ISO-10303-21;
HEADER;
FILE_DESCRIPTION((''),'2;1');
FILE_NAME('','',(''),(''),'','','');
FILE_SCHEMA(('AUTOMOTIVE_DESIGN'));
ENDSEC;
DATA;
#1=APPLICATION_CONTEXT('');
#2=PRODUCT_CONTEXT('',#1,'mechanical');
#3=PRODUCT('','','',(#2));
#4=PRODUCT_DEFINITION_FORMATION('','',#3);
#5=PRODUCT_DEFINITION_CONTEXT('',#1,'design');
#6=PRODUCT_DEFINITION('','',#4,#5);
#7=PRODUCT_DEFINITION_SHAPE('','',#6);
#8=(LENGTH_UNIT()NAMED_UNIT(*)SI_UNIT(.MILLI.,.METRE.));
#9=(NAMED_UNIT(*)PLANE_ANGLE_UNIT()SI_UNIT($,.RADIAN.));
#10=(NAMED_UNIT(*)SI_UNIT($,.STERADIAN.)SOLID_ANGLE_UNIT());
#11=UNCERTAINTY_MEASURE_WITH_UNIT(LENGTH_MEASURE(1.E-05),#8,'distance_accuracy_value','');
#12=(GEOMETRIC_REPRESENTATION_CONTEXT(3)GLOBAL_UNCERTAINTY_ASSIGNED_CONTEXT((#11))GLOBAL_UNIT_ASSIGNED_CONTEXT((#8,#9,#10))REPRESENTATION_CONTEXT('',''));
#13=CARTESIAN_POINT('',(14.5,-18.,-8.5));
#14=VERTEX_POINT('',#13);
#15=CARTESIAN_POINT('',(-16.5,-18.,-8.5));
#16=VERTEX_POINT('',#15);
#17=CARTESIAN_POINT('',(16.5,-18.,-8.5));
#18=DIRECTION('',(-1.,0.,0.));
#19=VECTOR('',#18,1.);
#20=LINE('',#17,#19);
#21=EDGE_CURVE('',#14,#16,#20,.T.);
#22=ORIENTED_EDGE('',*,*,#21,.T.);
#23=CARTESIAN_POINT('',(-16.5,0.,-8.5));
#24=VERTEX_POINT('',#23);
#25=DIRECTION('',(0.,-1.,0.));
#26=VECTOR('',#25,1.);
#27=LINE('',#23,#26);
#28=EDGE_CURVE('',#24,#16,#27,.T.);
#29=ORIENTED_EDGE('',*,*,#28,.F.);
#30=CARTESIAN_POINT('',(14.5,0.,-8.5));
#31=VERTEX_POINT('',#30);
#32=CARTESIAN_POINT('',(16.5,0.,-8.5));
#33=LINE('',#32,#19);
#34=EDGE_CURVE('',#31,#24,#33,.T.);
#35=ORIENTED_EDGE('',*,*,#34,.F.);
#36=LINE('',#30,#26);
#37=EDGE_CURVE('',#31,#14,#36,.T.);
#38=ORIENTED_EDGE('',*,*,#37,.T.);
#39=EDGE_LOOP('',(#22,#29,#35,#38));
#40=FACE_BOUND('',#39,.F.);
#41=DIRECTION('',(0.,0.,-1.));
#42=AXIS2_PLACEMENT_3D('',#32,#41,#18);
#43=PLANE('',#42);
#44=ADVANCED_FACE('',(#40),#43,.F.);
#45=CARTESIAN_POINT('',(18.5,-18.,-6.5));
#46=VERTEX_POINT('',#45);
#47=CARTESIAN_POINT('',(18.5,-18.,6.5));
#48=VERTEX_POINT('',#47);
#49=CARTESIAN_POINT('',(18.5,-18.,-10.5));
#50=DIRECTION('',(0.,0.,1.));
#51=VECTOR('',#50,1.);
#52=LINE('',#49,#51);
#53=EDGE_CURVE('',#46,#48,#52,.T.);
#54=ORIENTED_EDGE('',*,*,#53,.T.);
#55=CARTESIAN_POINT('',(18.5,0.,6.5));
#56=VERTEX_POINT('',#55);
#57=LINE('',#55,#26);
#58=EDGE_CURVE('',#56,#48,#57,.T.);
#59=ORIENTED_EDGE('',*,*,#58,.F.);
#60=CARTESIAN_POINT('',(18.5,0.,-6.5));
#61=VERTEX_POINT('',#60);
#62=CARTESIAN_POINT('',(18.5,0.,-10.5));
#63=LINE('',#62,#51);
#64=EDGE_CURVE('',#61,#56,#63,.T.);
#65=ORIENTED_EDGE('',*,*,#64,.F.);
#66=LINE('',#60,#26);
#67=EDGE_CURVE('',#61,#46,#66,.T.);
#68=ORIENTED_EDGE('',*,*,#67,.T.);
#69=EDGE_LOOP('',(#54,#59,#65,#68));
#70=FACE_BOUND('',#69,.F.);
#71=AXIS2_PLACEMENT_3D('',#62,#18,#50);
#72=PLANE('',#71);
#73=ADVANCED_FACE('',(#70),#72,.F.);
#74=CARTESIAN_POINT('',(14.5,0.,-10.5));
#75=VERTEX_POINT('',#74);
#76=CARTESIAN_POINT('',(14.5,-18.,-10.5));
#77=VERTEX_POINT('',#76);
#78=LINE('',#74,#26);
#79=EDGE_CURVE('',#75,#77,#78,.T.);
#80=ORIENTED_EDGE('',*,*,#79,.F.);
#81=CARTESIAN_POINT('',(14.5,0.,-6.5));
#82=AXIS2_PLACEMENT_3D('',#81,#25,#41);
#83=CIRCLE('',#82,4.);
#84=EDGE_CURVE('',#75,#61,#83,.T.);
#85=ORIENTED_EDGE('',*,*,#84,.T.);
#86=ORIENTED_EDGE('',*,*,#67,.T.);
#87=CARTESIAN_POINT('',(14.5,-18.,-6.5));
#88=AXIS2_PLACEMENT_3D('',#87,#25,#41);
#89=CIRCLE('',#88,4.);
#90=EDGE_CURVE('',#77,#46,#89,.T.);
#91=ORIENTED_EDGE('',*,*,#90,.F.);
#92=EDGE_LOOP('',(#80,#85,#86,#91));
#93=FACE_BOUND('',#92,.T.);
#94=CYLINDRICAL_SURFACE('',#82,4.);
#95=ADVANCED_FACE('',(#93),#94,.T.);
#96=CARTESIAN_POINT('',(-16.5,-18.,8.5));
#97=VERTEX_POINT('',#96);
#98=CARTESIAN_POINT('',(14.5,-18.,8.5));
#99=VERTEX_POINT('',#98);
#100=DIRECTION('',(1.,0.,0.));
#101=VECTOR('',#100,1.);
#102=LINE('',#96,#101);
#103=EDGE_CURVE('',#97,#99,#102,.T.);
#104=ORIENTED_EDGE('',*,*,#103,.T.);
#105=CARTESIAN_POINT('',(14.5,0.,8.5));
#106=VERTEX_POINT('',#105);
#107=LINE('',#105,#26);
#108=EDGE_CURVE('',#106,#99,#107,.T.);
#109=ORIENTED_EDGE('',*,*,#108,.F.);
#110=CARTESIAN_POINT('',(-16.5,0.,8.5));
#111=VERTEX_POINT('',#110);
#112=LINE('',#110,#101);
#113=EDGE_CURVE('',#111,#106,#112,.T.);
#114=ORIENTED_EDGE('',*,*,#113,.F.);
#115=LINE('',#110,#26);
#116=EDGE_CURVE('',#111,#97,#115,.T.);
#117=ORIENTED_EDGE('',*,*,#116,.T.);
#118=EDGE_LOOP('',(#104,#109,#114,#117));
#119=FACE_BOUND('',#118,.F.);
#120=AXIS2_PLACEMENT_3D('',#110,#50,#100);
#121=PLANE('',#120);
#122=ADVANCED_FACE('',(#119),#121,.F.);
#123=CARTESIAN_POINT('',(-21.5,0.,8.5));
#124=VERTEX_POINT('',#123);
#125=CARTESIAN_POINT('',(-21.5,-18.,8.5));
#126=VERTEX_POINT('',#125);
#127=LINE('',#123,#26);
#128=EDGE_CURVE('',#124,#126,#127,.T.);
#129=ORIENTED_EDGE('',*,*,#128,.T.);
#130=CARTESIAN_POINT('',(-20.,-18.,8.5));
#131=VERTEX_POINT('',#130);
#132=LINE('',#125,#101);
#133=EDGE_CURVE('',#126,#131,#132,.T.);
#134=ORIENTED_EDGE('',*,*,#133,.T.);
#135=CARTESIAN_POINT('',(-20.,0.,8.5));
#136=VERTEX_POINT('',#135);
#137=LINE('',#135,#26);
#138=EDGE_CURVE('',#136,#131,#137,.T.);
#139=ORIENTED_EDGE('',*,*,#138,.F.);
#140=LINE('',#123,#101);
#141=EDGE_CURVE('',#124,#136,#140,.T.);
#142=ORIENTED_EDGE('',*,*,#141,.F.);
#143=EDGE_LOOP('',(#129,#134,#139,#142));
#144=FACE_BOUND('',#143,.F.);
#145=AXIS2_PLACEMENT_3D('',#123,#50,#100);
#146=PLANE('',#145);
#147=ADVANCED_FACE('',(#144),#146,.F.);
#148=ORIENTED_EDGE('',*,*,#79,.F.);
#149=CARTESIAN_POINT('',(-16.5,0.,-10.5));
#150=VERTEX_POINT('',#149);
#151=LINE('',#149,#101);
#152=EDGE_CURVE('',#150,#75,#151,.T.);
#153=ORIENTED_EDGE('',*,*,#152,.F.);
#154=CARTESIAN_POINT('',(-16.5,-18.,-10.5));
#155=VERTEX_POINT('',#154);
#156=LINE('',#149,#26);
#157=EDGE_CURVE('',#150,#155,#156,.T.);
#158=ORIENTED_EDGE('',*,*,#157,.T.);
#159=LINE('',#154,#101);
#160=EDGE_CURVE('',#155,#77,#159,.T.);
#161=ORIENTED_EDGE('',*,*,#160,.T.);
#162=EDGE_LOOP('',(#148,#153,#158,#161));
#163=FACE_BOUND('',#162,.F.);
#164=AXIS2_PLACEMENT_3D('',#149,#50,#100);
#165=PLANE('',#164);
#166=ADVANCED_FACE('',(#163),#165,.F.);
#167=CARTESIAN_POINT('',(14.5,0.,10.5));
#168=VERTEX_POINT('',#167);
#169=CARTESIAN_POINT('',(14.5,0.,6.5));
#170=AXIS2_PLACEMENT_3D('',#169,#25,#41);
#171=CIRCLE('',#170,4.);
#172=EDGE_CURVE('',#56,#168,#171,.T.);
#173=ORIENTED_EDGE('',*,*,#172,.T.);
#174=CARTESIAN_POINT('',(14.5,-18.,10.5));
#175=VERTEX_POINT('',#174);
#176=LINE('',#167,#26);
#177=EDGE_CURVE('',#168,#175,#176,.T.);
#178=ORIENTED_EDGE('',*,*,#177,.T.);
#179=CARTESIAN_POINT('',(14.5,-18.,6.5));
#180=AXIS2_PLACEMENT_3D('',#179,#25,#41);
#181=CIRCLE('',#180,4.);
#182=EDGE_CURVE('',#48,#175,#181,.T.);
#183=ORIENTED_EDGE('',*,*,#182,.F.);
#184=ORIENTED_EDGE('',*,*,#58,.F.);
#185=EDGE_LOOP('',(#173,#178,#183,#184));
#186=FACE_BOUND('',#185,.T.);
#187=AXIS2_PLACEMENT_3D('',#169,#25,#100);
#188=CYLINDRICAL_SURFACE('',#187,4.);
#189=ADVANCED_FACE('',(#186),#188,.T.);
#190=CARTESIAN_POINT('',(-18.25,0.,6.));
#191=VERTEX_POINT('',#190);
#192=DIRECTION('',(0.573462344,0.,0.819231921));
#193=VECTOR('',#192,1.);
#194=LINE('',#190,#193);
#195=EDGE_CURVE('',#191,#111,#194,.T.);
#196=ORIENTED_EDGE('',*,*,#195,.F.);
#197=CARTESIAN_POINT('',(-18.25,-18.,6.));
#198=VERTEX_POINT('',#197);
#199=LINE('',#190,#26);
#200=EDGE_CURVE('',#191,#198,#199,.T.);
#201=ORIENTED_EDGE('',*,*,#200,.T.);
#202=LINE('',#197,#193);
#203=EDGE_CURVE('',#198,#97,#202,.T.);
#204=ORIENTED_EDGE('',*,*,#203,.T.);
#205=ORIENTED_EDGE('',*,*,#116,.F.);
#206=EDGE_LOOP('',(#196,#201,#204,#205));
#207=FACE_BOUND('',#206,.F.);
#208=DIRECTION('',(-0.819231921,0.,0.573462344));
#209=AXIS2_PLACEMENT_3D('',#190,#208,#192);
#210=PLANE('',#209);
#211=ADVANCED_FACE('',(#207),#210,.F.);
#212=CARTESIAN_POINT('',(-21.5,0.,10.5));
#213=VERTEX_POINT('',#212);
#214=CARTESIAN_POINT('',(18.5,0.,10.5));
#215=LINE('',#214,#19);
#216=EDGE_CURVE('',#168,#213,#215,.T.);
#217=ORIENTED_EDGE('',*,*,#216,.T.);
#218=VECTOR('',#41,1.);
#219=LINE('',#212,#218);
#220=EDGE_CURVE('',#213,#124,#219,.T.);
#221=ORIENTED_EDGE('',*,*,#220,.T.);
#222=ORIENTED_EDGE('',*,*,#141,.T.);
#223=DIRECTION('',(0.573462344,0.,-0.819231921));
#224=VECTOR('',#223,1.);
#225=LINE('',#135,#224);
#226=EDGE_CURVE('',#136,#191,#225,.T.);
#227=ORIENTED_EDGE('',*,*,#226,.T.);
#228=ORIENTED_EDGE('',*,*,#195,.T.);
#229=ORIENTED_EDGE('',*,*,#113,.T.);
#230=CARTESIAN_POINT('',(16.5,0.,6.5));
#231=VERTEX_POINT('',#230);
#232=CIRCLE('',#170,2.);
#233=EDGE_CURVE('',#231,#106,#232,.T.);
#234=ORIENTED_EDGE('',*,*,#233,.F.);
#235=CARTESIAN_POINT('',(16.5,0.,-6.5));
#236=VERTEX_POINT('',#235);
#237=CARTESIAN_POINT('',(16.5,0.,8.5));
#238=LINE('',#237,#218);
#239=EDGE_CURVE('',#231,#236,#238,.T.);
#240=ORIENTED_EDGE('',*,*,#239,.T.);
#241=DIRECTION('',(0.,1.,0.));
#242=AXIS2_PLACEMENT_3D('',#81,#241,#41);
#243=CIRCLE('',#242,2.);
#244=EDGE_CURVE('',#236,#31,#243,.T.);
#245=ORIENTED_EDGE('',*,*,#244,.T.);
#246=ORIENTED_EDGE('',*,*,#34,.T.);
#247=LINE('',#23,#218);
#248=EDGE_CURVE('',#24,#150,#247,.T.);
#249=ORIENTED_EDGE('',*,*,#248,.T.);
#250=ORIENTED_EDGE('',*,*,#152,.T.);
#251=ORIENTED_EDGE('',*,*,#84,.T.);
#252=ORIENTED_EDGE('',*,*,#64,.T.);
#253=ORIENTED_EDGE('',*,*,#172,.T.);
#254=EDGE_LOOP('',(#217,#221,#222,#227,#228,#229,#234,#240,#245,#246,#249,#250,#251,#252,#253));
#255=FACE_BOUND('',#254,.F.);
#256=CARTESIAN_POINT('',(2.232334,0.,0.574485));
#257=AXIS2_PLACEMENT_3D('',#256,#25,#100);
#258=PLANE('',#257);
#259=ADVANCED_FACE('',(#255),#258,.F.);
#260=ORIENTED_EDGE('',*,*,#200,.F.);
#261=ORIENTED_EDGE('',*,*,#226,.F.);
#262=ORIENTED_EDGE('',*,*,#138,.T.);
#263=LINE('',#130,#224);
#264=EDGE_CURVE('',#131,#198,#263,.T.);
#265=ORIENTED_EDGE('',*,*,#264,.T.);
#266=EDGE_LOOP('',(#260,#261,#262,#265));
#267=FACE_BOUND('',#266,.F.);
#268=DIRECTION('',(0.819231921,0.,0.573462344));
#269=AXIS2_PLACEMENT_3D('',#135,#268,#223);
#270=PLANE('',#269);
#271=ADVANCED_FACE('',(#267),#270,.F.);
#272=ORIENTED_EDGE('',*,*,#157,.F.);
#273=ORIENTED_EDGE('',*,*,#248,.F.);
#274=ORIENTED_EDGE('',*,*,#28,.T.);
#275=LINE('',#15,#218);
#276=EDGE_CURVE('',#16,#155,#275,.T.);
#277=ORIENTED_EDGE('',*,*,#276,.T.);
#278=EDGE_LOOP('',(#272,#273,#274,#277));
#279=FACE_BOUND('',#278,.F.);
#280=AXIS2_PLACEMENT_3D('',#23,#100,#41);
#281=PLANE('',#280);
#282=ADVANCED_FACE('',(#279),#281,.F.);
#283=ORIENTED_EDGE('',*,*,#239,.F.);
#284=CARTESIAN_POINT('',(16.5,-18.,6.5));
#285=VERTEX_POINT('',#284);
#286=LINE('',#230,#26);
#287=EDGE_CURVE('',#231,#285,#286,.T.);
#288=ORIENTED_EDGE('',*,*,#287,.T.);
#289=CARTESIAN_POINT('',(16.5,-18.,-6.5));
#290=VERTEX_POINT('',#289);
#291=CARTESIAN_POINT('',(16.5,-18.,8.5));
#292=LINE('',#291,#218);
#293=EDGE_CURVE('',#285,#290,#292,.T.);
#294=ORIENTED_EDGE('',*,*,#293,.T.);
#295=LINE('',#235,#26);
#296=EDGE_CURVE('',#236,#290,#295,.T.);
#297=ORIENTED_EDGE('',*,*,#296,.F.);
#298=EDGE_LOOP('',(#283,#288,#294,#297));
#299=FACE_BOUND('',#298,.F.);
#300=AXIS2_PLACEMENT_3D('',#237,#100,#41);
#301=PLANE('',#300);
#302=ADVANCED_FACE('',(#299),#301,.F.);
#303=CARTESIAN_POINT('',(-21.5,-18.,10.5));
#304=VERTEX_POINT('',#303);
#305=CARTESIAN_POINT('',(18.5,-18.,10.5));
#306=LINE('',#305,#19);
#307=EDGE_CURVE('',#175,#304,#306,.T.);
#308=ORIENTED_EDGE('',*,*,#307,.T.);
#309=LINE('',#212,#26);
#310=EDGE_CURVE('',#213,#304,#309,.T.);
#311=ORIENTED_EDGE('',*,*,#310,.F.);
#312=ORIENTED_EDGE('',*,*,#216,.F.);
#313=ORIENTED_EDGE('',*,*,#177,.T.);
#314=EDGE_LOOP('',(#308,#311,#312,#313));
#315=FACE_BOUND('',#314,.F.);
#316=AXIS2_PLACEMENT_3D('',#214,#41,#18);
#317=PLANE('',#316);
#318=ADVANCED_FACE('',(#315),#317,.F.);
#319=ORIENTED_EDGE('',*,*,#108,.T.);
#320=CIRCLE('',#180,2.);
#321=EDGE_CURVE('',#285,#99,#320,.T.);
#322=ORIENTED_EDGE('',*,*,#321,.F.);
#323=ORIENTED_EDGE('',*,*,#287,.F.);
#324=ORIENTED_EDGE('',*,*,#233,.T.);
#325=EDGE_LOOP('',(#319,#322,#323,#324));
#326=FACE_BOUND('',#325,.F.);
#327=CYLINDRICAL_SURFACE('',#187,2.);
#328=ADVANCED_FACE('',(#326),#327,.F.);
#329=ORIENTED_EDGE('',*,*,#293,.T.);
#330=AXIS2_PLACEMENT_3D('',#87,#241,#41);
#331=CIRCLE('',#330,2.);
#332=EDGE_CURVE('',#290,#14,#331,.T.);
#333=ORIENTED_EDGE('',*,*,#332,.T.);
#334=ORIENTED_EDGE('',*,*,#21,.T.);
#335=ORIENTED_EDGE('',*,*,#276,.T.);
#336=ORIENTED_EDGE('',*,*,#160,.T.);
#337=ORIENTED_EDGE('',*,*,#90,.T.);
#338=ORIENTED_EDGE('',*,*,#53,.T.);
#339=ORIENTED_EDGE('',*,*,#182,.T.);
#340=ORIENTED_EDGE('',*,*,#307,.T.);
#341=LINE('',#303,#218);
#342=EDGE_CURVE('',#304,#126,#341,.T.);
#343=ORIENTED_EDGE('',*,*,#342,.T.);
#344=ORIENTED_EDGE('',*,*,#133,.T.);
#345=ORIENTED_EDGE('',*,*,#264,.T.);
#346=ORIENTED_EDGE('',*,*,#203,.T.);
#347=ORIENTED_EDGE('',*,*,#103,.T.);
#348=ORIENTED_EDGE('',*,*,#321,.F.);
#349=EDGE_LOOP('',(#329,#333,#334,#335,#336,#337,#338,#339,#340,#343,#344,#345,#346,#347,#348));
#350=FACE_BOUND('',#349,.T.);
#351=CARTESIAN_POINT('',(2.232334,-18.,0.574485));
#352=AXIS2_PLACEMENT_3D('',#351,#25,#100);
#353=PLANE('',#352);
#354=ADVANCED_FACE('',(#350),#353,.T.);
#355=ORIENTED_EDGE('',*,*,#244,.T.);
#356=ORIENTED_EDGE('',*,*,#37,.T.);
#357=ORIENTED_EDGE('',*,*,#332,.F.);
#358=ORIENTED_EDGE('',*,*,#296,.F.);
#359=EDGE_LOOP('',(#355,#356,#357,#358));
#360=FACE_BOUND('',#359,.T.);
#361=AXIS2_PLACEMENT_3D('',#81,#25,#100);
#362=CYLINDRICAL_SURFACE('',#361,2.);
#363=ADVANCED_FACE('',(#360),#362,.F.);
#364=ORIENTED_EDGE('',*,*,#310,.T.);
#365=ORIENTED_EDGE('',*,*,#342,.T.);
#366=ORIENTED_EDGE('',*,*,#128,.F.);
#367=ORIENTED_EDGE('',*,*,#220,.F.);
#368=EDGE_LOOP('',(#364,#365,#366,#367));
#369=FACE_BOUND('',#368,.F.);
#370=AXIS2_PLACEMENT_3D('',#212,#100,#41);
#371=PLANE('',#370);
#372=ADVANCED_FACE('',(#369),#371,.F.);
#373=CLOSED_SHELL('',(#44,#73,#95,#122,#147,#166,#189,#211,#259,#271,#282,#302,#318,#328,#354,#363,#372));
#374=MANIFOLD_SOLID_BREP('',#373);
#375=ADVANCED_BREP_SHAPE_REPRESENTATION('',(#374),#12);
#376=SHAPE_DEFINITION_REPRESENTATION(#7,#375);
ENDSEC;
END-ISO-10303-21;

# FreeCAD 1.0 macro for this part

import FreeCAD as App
import Part
import Sketcher


def edges_at(feature, points):
    """Names of the edges that pass closest to the given points."""
    edges = feature.Shape.Edges
    near = lambda p: min(range(len(edges)), key=lambda i: edges[i].distToShape(Part.Vertex(*p))[0])
    return sorted({f"Edge{near(p) + 1}" for p in points})

doc = App.newDocument("Part")
body = doc.addObject("PartDesign::Body", "Body")

# Sketch on XZ plane
sketch1 = body.newObject("Sketcher::SketchObject", "Sketch")
sketch1.AttachmentSupport = (doc.getObject("XZ_Plane"), [""])
sketch1.MapMode = "FlatFace"
sketch1.addGeometry(Part.LineSegment(App.Vector(16.5, 8.5, 0), App.Vector(16.5, -8.5, 0)), False)
sketch1.addGeometry(Part.LineSegment(App.Vector(16.5, -8.5, 0), App.Vector(-16.5, -8.5, 0)), False)
sketch1.addGeometry(Part.LineSegment(App.Vector(-16.5, -8.5, 0), App.Vector(-16.5, -10.5, 0)), False)
sketch1.addGeometry(Part.LineSegment(App.Vector(-16.5, -10.5, 0), App.Vector(18.5, -10.5, 0)), False)
sketch1.addGeometry(Part.LineSegment(App.Vector(18.5, -10.5, 0), App.Vector(18.5, 10.5, 0)), False)
sketch1.addGeometry(Part.LineSegment(App.Vector(18.5, 10.5, 0), App.Vector(-21.5, 10.5, 0)), False)
sketch1.addGeometry(Part.LineSegment(App.Vector(-21.5, 10.5, 0), App.Vector(-21.5, 8.5, 0)), False)
sketch1.addGeometry(Part.LineSegment(App.Vector(-21.5, 8.5, 0), App.Vector(-20, 8.5, 0)), False)
sketch1.addGeometry(Part.LineSegment(App.Vector(-20, 8.5, 0), App.Vector(-18.25, 6, 0)), False)
sketch1.addGeometry(Part.LineSegment(App.Vector(-18.25, 6, 0), App.Vector(-16.5, 8.5, 0)), False)
sketch1.addGeometry(Part.LineSegment(App.Vector(-16.5, 8.5, 0), App.Vector(16.5, 8.5, 0)), False)
sketch1.addConstraint(Sketcher.Constraint("Coincident", 0, 2, 1, 1))
sketch1.addConstraint(Sketcher.Constraint("Coincident", 1, 2, 2, 1))
sketch1.addConstraint(Sketcher.Constraint("Coincident", 2, 2, 3, 1))
sketch1.addConstraint(Sketcher.Constraint("Coincident", 3, 2, 4, 1))
sketch1.addConstraint(Sketcher.Constraint("Coincident", 4, 2, 5, 1))
sketch1.addConstraint(Sketcher.Constraint("Coincident", 5, 2, 6, 1))
sketch1.addConstraint(Sketcher.Constraint("Coincident", 6, 2, 7, 1))
sketch1.addConstraint(Sketcher.Constraint("Coincident", 7, 2, 8, 1))
sketch1.addConstraint(Sketcher.Constraint("Coincident", 8, 2, 9, 1))
sketch1.addConstraint(Sketcher.Constraint("Coincident", 9, 2, 10, 1))
sketch1.addConstraint(Sketcher.Constraint("Coincident", 10, 2, 0, 1))
sketch1.addConstraint(Sketcher.Constraint("Vertical", 0))
sketch1.addConstraint(Sketcher.Constraint("Horizontal", 1))
sketch1.addConstraint(Sketcher.Constraint("Vertical", 2))
sketch1.addConstraint(Sketcher.Constraint("Horizontal", 3))
sketch1.addConstraint(Sketcher.Constraint("Vertical", 4))
sketch1.addConstraint(Sketcher.Constraint("Horizontal", 5))
sketch1.addConstraint(Sketcher.Constraint("Vertical", 6))
sketch1.addConstraint(Sketcher.Constraint("Horizontal", 7))
sketch1.addConstraint(Sketcher.Constraint("Horizontal", 10))
sketch1.addConstraint(Sketcher.Constraint("Symmetric", 0, 2, 9, 2, -1, 1))
sketch1.addConstraint(Sketcher.Constraint("Horizontal", 7, 2, 9, 2))
sketch1.addConstraint(Sketcher.Constraint("Vertical", 2, 2, 9, 2))
sketch1.addConstraint(Sketcher.Constraint("Equal", 2, 6))
sketch1.addConstraint(Sketcher.Constraint("Equal", 8, 9))
sketch1.addConstraint(Sketcher.Constraint("DistanceX", 1, 2, 1, 1, 33.0))
sketch1.addConstraint(Sketcher.Constraint("DistanceX", 3, 1, 3, 2, 35.0))
sketch1.addConstraint(Sketcher.Constraint("DistanceX", 5, 2, 5, 1, 40.0))
sketch1.addConstraint(Sketcher.Constraint("DistanceY", 0, 2, 0, 1, 17.0))
sketch1.addConstraint(Sketcher.Constraint("DistanceY", 2, 2, 2, 1, 2.0))
sketch1.addConstraint(Sketcher.Constraint("DistanceX", 7, 1, 7, 2, 1.5))
sketch1.addConstraint(Sketcher.Constraint("DistanceY", -1, 1, 8, 2, 6.0))
pad1 = body.newObject("PartDesign::Pad", "Pad")
pad1.Profile = sketch1
pad1.Length = 18
doc.recompute()

fillet = body.newObject("PartDesign::Fillet", "Fillet")
fillet.Base = (pad1, edges_at(pad1, [(16.5, -9, 8.5), (16.5, -9, -8.5)]))
fillet.Radius = 2
doc.recompute()

fillet2 = body.newObject("PartDesign::Fillet", "Fillet001")
fillet2.Base = (fillet, edges_at(fillet, [(18.5, -9, 10.5), (18.5, -9, -10.5)]))
fillet2.Radius = 4

doc.recompute()
